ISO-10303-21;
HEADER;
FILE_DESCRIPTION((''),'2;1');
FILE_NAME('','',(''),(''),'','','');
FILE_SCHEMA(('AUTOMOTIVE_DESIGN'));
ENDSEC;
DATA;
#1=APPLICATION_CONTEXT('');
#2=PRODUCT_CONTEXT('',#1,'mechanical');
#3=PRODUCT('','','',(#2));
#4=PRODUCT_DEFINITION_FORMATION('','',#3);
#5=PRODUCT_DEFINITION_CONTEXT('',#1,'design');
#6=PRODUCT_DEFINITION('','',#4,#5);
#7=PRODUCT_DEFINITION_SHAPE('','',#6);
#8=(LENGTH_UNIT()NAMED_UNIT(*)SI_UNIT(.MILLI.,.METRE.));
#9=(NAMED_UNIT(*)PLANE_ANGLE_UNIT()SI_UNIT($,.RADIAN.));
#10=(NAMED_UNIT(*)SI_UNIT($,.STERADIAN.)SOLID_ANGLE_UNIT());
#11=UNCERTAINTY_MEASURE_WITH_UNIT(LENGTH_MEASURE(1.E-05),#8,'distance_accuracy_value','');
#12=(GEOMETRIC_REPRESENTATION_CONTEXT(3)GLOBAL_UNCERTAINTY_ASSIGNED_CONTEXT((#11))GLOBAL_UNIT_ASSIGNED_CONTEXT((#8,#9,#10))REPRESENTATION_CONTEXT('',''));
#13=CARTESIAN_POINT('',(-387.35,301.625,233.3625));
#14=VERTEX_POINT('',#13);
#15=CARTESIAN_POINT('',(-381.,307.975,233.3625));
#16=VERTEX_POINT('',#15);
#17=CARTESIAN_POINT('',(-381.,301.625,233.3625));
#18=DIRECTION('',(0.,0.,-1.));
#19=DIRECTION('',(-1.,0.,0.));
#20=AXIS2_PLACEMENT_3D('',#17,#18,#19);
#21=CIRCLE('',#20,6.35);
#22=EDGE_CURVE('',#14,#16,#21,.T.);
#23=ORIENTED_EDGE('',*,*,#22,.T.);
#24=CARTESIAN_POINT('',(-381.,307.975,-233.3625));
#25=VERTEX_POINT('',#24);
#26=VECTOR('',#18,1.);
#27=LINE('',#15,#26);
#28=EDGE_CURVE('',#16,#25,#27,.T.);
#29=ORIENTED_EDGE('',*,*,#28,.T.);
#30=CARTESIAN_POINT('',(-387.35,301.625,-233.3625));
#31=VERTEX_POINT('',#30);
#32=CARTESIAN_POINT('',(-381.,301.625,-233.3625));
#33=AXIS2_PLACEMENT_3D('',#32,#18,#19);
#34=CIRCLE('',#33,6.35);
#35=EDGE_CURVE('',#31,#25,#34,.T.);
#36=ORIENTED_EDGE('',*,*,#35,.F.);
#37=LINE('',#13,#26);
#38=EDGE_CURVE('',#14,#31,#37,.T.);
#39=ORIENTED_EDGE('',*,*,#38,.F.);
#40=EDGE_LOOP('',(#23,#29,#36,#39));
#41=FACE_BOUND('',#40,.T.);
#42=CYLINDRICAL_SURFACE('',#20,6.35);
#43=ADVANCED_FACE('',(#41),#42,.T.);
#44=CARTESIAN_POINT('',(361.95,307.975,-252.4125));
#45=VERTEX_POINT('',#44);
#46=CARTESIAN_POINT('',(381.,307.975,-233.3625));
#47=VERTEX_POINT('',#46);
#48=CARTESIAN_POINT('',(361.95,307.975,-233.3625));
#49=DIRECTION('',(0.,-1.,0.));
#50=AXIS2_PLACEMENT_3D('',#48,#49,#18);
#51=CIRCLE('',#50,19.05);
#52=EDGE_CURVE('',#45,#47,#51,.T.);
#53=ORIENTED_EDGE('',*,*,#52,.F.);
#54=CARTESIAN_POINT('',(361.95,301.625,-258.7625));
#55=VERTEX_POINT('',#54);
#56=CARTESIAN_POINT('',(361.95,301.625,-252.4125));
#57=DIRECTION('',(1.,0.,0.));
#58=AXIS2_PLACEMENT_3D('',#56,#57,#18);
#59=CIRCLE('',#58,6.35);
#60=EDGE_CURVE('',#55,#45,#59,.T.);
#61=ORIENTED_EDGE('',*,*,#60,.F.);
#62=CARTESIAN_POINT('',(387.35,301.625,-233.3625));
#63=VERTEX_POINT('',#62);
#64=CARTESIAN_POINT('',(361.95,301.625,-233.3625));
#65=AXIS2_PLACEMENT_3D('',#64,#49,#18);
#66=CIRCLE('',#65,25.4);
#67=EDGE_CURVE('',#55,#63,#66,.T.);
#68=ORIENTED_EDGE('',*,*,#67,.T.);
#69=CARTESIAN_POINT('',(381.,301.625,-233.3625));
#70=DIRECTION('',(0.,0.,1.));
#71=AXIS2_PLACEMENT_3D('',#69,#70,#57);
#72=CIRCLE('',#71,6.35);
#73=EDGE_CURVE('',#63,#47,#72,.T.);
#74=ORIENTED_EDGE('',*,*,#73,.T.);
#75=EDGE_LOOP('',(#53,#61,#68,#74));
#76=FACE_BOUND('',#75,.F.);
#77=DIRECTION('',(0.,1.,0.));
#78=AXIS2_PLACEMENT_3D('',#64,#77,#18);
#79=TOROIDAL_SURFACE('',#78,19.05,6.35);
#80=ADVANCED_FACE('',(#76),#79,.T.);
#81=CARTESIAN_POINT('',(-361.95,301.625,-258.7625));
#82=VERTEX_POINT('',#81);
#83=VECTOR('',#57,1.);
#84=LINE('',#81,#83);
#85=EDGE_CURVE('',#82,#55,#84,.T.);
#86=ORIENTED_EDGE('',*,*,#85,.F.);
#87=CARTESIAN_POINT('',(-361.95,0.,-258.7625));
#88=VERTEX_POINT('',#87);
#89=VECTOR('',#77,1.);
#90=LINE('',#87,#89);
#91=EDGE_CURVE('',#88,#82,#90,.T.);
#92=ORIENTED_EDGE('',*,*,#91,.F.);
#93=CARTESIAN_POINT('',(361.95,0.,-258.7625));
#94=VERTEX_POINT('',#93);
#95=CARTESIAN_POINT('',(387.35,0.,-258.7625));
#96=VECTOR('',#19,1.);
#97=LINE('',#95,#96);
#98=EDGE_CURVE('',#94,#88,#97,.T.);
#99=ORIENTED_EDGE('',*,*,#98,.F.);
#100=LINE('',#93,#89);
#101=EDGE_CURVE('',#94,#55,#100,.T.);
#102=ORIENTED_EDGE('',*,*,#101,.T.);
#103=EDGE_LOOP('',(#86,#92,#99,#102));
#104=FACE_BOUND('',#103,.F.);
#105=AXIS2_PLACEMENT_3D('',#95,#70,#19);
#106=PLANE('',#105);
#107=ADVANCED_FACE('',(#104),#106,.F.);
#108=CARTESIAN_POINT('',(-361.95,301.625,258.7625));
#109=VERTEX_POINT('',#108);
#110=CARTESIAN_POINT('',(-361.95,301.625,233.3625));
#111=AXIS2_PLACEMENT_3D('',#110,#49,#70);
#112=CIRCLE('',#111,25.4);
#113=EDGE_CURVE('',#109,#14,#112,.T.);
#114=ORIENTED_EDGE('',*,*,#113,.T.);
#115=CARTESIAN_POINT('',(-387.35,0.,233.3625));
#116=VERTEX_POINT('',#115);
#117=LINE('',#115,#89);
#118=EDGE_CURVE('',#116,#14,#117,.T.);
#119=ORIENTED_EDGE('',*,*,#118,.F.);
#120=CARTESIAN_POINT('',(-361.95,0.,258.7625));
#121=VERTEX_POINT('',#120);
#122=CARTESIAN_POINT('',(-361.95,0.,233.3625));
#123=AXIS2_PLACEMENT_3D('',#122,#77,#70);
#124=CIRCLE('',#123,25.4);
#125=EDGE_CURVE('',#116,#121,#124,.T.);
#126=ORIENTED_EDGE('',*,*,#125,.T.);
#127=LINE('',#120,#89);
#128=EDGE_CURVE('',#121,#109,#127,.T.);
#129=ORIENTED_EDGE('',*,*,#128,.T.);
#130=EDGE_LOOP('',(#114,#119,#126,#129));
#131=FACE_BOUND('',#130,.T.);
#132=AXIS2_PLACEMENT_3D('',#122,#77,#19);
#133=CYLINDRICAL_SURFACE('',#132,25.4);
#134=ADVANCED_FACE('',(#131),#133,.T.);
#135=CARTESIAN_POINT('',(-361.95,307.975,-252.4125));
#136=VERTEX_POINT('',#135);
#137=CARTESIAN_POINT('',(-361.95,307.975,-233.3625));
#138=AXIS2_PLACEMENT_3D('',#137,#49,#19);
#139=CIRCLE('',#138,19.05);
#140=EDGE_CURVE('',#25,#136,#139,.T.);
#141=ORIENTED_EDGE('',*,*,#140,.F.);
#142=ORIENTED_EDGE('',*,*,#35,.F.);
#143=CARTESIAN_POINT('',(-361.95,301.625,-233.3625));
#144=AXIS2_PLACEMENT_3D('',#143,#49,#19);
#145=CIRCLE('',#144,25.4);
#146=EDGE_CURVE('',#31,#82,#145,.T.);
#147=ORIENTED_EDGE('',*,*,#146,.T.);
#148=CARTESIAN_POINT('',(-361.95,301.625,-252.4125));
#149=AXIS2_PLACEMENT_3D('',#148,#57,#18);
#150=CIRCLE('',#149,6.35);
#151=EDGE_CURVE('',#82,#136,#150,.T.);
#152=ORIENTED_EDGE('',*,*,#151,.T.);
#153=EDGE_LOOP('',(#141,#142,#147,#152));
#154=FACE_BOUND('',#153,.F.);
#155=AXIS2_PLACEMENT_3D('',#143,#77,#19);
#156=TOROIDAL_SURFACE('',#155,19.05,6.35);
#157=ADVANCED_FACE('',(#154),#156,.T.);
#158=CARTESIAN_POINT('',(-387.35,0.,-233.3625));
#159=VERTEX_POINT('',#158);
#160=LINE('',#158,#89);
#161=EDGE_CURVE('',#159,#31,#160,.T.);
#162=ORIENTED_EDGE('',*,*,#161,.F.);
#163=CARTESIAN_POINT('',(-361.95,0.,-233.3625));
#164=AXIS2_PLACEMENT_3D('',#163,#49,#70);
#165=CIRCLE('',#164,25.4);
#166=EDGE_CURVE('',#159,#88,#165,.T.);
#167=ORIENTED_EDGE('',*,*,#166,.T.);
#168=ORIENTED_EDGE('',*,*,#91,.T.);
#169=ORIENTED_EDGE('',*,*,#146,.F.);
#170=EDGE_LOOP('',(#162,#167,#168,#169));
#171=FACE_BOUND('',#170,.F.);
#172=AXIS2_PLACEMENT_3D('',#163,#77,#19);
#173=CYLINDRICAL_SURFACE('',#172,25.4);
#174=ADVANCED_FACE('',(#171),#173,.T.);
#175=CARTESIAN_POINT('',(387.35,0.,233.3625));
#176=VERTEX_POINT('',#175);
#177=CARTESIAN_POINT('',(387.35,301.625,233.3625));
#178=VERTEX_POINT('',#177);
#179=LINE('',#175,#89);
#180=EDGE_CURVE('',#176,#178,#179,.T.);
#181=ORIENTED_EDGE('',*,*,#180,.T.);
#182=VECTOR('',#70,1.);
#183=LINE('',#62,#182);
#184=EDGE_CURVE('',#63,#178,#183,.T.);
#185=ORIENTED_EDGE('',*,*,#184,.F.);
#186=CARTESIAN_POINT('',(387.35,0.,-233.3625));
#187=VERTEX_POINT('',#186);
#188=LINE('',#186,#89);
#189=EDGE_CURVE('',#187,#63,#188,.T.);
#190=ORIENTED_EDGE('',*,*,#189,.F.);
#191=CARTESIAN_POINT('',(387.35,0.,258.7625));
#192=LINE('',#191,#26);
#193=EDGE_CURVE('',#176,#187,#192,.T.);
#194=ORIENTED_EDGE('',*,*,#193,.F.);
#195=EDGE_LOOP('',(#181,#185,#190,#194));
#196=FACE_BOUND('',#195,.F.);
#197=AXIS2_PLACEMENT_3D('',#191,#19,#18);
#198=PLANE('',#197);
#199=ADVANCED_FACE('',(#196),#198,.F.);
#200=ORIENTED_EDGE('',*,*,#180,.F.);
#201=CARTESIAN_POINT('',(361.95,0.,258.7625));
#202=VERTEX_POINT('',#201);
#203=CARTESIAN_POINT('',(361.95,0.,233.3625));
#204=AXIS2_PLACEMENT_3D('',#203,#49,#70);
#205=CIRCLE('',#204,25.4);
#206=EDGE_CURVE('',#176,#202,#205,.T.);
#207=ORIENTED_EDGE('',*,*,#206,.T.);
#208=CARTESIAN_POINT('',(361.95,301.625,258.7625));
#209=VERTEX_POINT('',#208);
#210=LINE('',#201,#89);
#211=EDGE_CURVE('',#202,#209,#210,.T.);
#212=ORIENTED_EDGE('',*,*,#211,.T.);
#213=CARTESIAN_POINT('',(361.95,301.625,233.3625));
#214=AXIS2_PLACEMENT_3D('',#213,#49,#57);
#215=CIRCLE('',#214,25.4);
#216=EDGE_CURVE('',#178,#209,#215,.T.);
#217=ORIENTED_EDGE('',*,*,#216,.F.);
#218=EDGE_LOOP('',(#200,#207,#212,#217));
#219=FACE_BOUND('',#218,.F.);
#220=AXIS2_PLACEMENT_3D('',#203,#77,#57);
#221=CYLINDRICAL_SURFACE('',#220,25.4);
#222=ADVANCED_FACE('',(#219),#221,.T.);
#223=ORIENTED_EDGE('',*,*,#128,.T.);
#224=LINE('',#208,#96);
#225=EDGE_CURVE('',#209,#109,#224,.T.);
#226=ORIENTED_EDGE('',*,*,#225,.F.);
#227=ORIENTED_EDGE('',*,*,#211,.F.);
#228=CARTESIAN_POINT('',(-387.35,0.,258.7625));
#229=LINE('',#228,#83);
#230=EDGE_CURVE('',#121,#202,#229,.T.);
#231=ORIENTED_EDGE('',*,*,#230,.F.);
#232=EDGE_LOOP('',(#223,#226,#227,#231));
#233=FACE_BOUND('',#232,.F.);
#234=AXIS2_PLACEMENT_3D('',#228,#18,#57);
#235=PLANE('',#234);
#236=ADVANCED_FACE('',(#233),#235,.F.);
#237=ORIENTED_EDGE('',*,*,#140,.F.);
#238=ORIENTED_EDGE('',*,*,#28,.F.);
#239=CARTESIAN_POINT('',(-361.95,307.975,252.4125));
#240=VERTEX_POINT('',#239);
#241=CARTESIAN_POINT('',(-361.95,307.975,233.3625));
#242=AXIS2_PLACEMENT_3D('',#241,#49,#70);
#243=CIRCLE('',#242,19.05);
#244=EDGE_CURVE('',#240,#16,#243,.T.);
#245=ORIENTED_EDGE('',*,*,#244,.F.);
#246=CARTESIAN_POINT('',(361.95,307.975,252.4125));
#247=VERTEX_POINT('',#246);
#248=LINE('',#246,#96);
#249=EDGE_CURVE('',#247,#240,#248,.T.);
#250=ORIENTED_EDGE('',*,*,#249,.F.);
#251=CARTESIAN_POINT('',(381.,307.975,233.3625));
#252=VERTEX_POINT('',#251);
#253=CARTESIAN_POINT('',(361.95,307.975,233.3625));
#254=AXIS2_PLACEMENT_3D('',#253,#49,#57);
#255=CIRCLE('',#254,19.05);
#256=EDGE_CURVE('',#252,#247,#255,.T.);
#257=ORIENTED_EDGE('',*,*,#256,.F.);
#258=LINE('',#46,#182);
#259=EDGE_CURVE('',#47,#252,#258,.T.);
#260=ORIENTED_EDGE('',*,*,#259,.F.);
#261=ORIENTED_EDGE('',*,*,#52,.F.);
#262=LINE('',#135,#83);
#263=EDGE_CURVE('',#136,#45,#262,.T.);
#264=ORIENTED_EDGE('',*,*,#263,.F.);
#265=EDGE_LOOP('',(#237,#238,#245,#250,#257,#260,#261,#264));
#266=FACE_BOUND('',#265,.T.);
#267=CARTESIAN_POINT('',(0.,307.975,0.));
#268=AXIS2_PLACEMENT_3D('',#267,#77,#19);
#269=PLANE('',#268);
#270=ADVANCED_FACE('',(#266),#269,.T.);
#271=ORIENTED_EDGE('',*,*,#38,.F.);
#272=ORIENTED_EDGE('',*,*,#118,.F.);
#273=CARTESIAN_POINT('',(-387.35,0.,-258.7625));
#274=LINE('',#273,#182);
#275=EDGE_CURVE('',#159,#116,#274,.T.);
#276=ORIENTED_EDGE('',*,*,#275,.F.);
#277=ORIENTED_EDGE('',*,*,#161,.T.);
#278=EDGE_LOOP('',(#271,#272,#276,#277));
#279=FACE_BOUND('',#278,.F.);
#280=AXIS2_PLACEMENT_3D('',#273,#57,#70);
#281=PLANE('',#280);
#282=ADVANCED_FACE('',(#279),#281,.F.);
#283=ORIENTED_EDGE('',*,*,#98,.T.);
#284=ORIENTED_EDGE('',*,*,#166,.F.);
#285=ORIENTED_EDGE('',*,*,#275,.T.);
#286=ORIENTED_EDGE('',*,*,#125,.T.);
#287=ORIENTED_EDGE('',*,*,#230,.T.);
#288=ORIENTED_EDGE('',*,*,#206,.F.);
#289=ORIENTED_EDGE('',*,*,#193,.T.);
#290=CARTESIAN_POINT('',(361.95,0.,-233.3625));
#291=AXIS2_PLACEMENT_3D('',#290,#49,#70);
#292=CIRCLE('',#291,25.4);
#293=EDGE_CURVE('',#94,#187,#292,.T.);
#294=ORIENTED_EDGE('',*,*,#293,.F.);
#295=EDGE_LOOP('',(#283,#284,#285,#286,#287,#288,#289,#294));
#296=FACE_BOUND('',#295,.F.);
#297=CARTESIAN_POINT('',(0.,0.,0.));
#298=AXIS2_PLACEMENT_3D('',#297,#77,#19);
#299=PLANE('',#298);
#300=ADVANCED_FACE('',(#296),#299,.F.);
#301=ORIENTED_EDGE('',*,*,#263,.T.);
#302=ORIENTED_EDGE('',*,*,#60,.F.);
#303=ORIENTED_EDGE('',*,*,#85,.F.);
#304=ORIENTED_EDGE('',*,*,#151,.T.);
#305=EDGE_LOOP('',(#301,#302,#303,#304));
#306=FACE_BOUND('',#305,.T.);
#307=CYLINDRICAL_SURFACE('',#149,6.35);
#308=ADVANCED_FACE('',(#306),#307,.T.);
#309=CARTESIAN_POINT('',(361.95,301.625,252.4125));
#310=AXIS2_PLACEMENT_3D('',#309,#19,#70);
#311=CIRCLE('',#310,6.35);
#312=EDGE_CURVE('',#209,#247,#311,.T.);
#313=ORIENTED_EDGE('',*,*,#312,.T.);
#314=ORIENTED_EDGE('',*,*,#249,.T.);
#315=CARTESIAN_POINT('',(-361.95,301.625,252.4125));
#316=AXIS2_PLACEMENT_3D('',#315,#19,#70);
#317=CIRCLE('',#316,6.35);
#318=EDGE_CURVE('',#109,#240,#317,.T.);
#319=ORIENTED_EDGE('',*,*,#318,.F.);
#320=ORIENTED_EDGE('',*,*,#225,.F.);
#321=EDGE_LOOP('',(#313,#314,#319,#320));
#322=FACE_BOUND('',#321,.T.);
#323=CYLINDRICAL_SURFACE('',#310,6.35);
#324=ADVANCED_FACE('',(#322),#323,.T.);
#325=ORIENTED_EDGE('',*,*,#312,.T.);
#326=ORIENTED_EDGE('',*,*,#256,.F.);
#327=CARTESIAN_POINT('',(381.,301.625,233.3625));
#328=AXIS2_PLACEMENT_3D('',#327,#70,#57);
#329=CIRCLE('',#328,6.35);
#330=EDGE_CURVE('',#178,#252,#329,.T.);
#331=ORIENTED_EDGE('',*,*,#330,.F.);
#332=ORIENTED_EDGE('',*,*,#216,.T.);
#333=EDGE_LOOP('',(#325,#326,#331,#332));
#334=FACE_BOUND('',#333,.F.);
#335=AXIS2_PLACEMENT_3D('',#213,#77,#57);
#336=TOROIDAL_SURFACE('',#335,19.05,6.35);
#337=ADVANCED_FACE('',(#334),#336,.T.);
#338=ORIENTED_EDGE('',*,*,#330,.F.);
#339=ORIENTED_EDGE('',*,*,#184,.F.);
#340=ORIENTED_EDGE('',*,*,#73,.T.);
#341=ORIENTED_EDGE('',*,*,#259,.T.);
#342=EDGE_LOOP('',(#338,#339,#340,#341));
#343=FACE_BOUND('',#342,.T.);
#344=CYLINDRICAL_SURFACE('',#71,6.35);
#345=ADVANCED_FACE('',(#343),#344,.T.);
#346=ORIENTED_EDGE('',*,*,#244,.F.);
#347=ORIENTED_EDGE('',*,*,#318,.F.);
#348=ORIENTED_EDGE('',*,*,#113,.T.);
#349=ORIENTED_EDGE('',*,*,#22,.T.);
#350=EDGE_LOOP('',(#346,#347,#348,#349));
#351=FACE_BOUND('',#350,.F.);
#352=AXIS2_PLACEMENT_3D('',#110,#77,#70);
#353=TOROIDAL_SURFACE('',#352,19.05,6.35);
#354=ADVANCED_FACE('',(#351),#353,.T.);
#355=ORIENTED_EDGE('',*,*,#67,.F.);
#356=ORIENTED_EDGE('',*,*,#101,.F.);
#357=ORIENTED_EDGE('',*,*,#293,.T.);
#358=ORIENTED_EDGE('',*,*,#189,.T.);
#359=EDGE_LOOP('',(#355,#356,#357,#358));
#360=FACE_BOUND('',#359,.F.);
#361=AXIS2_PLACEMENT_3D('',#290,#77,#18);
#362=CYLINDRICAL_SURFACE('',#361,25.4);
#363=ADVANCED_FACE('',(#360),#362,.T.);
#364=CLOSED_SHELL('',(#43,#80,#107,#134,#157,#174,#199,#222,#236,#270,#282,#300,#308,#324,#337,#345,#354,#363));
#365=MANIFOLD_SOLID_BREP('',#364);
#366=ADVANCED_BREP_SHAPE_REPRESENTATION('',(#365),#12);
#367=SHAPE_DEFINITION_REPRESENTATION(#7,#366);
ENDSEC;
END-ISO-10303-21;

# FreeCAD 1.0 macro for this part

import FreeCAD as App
import Part
import Sketcher
from FreeCAD import Vector
Q = App.Units.Quantity


def edges_at(feature, points):
    """Names of the edges that pass closest to the given points."""
    edges = feature.Shape.Edges
    near = lambda p: min(range(len(edges)), key=lambda i: edges[i].distToShape(Part.Vertex(*p))[0])
    return sorted({f"Edge{near(p) + 1}" for p in points})


def add_polygon(sketch, points):
    """Adds a closed chain of lines whose ends are joined by coincident constraints."""
    first, n = sketch.GeometryCount, len(points)
    for a, b in zip(points, points[1:] + points[:1]):
        sketch.addGeometry(Part.LineSegment(App.Vector(*a, 0), App.Vector(*b, 0)), False)
    for i in range(n):
        sketch.addConstraint(Sketcher.Constraint("Coincident", first + i, 2, first + (i + 1) % n, 1))

doc = App.newDocument("Part")
body = doc.addObject("PartDesign::Body", "Body")

# Sketch on XZ plane
sketch1 = body.newObject("Sketcher::SketchObject", "Sketch")
sketch1.AttachmentSupport = (doc.getObject("XZ_Plane"), [""])
sketch1.MapMode = "FlatFace"
add_polygon(sketch1, [(-387.35, -258.7625), (-387.35, 258.7625), (387.35, 258.7625), (387.35, -258.7625)])  # lines 0-3
sketch1.addConstraint(Sketcher.Constraint("Vertical", 0))
sketch1.addConstraint(Sketcher.Constraint("Horizontal", 1))
sketch1.addConstraint(Sketcher.Constraint("Vertical", 2))
sketch1.addConstraint(Sketcher.Constraint("Horizontal", 3))
sketch1.addConstraint(Sketcher.Constraint("Symmetric", 0, 2, 2, 2, -1, 1))
sketch1.addConstraint(Sketcher.Constraint("DistanceX", 1, 1, 1, 2, Q("30.5 in")))
sketch1.addConstraint(Sketcher.Constraint("DistanceY", 0, 1, 0, 2, Q("20.375 in")))
pad1 = body.newObject("PartDesign::Pad", "Pad")
pad1.Profile = sketch1
pad1.Length = Q("12.125 in")
pad1.Reversed = True
doc.recompute()

fillet = body.newObject("PartDesign::Fillet", "Fillet")
fillet.Base = (pad1, edges_at(pad1, [
    (-387.35, 153.988, 258.762),
    (387.35, 153.988, 258.762),
    (387.35, 153.988, -258.762),
    (-387.35, 153.988, -258.762),
]))
fillet.Radius = Q("1 in")
doc.recompute()

fillet2 = body.newObject("PartDesign::Fillet", "Fillet001")
fillet2.Base = (fillet, edges_at(fillet, [
    (-379.911, 307.975, -251.323),
    (-379.911, 307.975, 251.323),
    (379.911, 307.975, -251.323),
    (379.911, 307.975, 251.323),
    (387.35, 307.975, 0),
    (0, 307.975, -258.762),
    (-387.35, 307.975, 0),
    (0, 307.975, 258.762),
]))
fillet2.Radius = Q("0.25 in")

doc.recompute()
